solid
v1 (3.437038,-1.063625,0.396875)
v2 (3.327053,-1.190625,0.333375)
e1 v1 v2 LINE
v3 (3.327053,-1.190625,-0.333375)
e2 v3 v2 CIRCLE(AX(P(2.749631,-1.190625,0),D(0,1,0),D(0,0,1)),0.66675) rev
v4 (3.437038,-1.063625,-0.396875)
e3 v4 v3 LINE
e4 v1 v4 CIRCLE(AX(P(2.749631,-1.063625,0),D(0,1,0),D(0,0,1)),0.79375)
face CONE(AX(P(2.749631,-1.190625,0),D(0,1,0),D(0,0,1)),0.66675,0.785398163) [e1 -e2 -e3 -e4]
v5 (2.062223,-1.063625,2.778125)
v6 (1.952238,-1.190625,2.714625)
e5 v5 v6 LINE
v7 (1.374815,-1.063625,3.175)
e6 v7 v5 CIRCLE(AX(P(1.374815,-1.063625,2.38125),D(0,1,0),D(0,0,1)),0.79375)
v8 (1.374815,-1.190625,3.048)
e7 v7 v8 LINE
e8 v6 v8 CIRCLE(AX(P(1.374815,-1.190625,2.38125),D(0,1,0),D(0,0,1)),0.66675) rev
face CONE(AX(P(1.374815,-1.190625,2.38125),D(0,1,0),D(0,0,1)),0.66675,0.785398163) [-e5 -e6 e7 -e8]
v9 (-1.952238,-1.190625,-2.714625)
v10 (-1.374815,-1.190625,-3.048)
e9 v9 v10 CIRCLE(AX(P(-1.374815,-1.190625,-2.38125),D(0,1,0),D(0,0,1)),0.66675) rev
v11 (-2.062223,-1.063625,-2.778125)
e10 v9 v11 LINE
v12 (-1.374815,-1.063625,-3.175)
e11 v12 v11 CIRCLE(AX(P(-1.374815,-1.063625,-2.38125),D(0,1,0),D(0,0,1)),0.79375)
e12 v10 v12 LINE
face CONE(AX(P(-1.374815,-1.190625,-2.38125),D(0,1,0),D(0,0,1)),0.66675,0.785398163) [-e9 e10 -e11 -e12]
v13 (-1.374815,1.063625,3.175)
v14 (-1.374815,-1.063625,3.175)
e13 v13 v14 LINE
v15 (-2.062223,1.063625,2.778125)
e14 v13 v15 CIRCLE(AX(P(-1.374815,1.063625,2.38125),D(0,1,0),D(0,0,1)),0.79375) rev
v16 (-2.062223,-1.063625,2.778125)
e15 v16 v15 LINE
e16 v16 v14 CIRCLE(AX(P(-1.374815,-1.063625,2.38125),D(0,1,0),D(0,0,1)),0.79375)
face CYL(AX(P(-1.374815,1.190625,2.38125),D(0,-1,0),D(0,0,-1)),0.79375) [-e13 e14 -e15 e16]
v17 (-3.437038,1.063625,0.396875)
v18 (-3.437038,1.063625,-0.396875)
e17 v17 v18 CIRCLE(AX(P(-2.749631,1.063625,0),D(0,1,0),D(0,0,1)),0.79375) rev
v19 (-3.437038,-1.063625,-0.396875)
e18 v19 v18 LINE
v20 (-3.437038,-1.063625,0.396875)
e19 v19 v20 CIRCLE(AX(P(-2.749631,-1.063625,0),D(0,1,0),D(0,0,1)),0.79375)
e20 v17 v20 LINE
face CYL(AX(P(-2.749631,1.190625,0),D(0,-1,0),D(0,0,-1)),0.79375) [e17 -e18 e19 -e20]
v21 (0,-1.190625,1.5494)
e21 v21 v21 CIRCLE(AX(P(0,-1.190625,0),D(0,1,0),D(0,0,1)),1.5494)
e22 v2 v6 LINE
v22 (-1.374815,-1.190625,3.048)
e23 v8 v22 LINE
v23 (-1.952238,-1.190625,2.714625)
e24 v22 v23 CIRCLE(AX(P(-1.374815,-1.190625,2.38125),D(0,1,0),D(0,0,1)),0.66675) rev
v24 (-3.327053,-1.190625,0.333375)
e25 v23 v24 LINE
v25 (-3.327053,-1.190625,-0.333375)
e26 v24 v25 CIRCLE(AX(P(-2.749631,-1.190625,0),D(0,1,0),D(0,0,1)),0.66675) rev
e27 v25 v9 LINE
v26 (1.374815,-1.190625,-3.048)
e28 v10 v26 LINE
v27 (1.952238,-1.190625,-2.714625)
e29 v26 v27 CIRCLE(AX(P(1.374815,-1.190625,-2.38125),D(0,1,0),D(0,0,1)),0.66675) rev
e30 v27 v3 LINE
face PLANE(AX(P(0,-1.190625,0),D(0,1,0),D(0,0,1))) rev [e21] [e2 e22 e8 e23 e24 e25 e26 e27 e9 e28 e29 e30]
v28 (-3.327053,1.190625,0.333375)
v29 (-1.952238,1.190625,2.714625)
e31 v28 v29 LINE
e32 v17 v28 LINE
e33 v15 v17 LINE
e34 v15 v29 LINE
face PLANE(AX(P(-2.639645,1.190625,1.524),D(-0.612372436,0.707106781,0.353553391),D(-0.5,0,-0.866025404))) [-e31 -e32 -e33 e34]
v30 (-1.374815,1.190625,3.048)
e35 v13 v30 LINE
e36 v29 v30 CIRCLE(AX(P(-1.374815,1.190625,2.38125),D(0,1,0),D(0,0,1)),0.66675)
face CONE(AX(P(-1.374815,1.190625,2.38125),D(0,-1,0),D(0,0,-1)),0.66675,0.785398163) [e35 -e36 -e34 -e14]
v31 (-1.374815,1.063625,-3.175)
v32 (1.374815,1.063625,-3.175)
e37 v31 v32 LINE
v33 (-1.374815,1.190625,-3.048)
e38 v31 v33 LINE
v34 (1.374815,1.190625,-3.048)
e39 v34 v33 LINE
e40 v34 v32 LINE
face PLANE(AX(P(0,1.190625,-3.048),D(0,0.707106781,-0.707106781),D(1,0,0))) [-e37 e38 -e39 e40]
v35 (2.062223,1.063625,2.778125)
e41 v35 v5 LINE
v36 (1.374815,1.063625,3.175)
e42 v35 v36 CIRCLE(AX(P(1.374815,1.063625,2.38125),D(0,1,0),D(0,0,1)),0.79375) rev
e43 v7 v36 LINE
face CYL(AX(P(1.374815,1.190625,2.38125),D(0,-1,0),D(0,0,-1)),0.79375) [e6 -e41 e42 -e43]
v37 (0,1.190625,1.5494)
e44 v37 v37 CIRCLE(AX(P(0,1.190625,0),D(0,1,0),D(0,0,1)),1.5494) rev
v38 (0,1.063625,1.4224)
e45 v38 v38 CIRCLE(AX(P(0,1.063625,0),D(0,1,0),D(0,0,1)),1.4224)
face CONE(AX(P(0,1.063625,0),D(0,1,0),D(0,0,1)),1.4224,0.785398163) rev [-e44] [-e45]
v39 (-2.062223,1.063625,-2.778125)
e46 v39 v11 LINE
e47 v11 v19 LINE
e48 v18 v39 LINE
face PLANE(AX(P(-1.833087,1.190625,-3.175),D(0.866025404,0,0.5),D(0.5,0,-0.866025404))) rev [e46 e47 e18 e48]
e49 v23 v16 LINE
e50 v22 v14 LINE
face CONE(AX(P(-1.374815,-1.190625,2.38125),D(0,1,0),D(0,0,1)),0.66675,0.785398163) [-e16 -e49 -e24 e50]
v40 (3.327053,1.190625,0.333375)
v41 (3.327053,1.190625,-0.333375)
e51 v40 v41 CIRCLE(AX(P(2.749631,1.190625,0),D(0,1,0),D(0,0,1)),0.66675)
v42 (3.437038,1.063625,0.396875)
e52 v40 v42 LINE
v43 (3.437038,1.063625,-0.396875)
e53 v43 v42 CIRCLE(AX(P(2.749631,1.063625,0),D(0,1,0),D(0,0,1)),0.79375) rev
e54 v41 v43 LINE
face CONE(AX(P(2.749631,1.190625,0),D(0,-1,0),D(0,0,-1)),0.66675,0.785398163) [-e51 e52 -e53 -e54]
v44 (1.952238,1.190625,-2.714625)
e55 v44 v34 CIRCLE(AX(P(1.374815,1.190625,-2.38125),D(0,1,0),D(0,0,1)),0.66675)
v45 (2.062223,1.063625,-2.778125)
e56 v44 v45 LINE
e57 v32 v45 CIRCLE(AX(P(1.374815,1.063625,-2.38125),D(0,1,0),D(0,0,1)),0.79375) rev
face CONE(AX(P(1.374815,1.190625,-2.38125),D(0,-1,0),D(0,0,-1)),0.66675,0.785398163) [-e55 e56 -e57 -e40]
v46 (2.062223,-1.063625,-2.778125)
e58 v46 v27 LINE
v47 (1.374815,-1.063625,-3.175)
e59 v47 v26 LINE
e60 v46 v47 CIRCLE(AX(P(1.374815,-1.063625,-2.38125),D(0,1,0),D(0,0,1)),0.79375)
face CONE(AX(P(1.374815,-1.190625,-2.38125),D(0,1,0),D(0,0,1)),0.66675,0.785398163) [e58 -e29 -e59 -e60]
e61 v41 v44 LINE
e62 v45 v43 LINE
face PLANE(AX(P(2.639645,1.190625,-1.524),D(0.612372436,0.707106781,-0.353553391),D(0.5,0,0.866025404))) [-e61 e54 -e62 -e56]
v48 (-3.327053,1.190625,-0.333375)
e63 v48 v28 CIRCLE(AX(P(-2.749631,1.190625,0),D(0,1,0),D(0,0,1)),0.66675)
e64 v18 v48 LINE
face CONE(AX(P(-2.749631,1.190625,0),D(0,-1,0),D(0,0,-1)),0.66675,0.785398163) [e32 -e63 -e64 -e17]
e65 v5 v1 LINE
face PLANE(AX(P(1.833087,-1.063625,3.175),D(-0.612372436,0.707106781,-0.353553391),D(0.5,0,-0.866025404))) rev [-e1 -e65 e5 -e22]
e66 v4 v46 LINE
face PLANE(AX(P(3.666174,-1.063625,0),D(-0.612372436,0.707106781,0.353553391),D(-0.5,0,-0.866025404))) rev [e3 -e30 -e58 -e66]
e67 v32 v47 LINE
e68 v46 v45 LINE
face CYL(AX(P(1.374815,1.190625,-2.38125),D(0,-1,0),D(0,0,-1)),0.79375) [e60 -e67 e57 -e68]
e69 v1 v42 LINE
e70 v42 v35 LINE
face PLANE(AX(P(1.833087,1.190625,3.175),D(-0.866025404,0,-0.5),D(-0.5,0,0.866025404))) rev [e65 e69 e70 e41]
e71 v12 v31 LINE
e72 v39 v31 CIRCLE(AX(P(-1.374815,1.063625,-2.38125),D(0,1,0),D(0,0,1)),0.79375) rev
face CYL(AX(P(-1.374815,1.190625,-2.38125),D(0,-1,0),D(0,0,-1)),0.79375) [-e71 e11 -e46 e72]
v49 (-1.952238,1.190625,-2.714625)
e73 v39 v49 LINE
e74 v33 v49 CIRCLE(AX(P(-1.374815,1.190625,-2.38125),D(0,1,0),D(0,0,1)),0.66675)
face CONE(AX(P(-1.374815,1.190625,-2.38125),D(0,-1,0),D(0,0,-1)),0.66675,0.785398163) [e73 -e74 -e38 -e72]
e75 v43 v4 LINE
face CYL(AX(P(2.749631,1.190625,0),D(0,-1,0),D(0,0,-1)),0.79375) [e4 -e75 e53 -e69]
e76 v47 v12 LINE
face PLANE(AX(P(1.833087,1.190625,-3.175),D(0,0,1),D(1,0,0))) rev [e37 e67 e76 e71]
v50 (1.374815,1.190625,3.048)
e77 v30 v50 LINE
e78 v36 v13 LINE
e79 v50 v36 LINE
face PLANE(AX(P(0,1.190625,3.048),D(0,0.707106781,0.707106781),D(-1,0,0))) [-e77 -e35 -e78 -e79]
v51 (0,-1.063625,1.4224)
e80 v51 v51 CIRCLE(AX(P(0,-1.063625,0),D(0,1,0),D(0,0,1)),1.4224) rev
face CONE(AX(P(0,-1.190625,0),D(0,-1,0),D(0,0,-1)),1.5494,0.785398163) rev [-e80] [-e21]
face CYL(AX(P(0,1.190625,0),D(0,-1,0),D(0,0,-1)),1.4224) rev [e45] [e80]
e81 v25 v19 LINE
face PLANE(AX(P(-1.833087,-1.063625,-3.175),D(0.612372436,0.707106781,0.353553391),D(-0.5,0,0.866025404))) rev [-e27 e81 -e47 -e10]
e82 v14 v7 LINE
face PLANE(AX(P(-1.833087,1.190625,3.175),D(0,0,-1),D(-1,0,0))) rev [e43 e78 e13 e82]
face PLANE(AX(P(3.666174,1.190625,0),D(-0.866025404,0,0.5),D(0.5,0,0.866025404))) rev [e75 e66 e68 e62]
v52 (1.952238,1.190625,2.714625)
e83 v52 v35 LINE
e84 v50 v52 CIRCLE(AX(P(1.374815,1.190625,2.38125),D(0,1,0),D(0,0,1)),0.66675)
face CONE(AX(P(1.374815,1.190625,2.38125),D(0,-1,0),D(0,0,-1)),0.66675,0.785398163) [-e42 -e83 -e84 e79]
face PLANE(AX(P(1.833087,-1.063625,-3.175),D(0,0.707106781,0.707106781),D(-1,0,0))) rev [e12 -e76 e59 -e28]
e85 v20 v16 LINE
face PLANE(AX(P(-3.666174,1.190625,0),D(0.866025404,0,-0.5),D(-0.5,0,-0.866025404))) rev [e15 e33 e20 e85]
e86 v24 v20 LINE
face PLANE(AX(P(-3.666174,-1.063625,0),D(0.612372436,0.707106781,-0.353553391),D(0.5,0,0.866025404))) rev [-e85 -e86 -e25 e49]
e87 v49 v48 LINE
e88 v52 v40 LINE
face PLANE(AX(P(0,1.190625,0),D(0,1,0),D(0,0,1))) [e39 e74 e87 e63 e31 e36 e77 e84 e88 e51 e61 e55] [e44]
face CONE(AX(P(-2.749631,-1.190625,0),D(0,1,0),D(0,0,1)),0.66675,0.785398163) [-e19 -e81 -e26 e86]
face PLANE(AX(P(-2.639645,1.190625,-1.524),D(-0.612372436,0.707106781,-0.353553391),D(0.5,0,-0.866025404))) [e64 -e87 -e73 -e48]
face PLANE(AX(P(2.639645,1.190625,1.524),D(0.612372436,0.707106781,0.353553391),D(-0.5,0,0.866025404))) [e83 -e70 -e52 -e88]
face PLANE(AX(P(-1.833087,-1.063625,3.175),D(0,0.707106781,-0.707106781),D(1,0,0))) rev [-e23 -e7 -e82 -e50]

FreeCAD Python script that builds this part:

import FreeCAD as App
import Part
import Sketcher

V = App.Vector
Q = App.Units.Quantity


def edges_at(feature, points):
    """Names of the edges that pass closest to the given points."""
    edges = feature.Shape.Edges
    near = lambda p: min(range(len(edges)), key=lambda i: edges[i].distToShape(Part.Vertex(*p))[0])
    return sorted({f"Edge{near(p) + 1}" for p in points})


def add_polygon(sketch, points):
    """Adds a closed chain of lines whose ends are joined by coincident constraints."""
    first, n = sketch.GeometryCount, len(points)
    for a, b in zip(points, points[1:] + points[:1]):
        sketch.addGeometry(Part.LineSegment(App.Vector(*a, 0), App.Vector(*b, 0)), False)
    for i in range(n):
        sketch.addConstraint(Sketcher.Constraint("Coincident", first + i, 2, first + (i + 1) % n, 1))

doc = App.newDocument("Part")
params = doc.addObject("Spreadsheet::Sheet", "Params")
for row, (alias, value) in enumerate([
    ("sketch1_diameter", "0.112 in"),
    ("pad1_length", "0.09375 in"),
    ("fillet_radius", "0.03125 in"),
    ("chamfer_size", "0.005 in"),
], start=1):
    params.set(f"A{row}", alias)
    params.set(f"B{row}", "=" + value)
    params.setAlias(f"B{row}", alias)

body = doc.addObject("PartDesign::Body", "Body")

# Sketch on XZ plane
sketch1 = body.newObject("Sketcher::SketchObject", "Sketch")
sketch1.AttachmentSupport = (doc.getObject("XZ_Plane"), [""])
sketch1.MapMode = "FlatFace"
add_polygon(sketch1, [(1.8, -3.2), (-1.8, -3.2), (-3.7, 0), (-1.8, 3.2), (1.8, 3.2), (3.7, 0)])  # lines 0-5
sketch1.addGeometry(Part.Circle(V(0, 0, 0), V(0, 0, 1), 1.4), False)  # 6
sketch1.addConstraint(Sketcher.Constraint("Horizontal", 0))
sketch1.addConstraint(Sketcher.Constraint("Horizontal", 3))
sketch1.addConstraint(Sketcher.Constraint("Coincident", 6, 3, -1, 1))
sketch1.addConstraint(Sketcher.Constraint("Symmetric", 0, 2, 3, 2, -1, 1))
sketch1.addConstraint(Sketcher.Constraint("Symmetric", 1, 2, 4, 2, -1, 1))
sketch1.addConstraint(Sketcher.Constraint("PointOnObject", 1, 2, -1))
sketch1.addConstraint(Sketcher.Constraint("Parallel", 2, 5))
sketch1.addConstraint(Sketcher.Constraint("Vertical", 0, 2, 2, 2))
sketch1.addConstraint(Sketcher.Constraint("Diameter", 6, Q("0.112 in")))
sketch1.addConstraint(Sketcher.Constraint("Angle", 1, Q("120 deg")))
sketch1.addConstraint(Sketcher.Constraint("DistanceY", 0, 2, 2, 2, Q("0.25 in")))
sketch1.addConstraint(Sketcher.Constraint("DistanceX", 0, 2, 0, 1, 3.666174))
sketch1.setExpression("Constraints[14]", "Params.sketch1_diameter")
pad1 = body.newObject("PartDesign::Pad", "Pad")
pad1.Profile = sketch1
pad1.setExpression("Length", "Params.pad1_length")
pad1.Midplane = True
doc.recompute()

fillet = body.newObject("PartDesign::Fillet", "Fillet")
fillet.Base = (pad1, edges_at(pad1, [
    (3.666, 0, 0),
    (1.833, 0, 3.175),
    (-1.833, 0, 3.175),
    (-3.666, 0, 0),
    (-1.833, 0, -3.175),
    (1.833, 0, -3.175),
]))
fillet.setExpression("Radius", "Params.fillet_radius")
doc.recompute()

chamfer = body.newObject("PartDesign::Chamfer", "Chamfer")
chamfer.Base = (fillet, edges_at(fillet, [
    (-1.422, -1.191, 0),
    (-1.422, 1.191, 0),
    (2.75, -1.191, -1.587),
    (2.75, 1.191, -1.587),
    (2.75, -1.191, 1.587),
    (0, -1.191, 3.175),
    (-2.75, -1.191, 1.587),
    (-2.75, -1.191, -1.587),
    (0, -1.191, -3.175),
    (-1.772, -1.191, 3.069),
    (1.772, -1.191, -3.069),
    (-1.772, -1.191, -3.069),
    (-3.543, -1.191, 0),
    (1.772, -1.191, 3.069),
    (3.543, -1.191, 0),
    (2.75, 1.191, 1.587),
    (0, 1.191, -3.175),
    (-2.75, 1.191, -1.587),
    (-2.75, 1.191, 1.587),
    (0, 1.191, 3.175),
    (-1.772, 1.191, 3.069),
    (1.772, 1.191, -3.069),
    (-1.772, 1.191, -3.069),
    (-3.543, 1.191, 0),
    (1.772, 1.191, 3.069),
    (3.543, 1.191, 0),
]))
chamfer.setExpression("Size", "Params.chamfer_size")

doc.recompute()
